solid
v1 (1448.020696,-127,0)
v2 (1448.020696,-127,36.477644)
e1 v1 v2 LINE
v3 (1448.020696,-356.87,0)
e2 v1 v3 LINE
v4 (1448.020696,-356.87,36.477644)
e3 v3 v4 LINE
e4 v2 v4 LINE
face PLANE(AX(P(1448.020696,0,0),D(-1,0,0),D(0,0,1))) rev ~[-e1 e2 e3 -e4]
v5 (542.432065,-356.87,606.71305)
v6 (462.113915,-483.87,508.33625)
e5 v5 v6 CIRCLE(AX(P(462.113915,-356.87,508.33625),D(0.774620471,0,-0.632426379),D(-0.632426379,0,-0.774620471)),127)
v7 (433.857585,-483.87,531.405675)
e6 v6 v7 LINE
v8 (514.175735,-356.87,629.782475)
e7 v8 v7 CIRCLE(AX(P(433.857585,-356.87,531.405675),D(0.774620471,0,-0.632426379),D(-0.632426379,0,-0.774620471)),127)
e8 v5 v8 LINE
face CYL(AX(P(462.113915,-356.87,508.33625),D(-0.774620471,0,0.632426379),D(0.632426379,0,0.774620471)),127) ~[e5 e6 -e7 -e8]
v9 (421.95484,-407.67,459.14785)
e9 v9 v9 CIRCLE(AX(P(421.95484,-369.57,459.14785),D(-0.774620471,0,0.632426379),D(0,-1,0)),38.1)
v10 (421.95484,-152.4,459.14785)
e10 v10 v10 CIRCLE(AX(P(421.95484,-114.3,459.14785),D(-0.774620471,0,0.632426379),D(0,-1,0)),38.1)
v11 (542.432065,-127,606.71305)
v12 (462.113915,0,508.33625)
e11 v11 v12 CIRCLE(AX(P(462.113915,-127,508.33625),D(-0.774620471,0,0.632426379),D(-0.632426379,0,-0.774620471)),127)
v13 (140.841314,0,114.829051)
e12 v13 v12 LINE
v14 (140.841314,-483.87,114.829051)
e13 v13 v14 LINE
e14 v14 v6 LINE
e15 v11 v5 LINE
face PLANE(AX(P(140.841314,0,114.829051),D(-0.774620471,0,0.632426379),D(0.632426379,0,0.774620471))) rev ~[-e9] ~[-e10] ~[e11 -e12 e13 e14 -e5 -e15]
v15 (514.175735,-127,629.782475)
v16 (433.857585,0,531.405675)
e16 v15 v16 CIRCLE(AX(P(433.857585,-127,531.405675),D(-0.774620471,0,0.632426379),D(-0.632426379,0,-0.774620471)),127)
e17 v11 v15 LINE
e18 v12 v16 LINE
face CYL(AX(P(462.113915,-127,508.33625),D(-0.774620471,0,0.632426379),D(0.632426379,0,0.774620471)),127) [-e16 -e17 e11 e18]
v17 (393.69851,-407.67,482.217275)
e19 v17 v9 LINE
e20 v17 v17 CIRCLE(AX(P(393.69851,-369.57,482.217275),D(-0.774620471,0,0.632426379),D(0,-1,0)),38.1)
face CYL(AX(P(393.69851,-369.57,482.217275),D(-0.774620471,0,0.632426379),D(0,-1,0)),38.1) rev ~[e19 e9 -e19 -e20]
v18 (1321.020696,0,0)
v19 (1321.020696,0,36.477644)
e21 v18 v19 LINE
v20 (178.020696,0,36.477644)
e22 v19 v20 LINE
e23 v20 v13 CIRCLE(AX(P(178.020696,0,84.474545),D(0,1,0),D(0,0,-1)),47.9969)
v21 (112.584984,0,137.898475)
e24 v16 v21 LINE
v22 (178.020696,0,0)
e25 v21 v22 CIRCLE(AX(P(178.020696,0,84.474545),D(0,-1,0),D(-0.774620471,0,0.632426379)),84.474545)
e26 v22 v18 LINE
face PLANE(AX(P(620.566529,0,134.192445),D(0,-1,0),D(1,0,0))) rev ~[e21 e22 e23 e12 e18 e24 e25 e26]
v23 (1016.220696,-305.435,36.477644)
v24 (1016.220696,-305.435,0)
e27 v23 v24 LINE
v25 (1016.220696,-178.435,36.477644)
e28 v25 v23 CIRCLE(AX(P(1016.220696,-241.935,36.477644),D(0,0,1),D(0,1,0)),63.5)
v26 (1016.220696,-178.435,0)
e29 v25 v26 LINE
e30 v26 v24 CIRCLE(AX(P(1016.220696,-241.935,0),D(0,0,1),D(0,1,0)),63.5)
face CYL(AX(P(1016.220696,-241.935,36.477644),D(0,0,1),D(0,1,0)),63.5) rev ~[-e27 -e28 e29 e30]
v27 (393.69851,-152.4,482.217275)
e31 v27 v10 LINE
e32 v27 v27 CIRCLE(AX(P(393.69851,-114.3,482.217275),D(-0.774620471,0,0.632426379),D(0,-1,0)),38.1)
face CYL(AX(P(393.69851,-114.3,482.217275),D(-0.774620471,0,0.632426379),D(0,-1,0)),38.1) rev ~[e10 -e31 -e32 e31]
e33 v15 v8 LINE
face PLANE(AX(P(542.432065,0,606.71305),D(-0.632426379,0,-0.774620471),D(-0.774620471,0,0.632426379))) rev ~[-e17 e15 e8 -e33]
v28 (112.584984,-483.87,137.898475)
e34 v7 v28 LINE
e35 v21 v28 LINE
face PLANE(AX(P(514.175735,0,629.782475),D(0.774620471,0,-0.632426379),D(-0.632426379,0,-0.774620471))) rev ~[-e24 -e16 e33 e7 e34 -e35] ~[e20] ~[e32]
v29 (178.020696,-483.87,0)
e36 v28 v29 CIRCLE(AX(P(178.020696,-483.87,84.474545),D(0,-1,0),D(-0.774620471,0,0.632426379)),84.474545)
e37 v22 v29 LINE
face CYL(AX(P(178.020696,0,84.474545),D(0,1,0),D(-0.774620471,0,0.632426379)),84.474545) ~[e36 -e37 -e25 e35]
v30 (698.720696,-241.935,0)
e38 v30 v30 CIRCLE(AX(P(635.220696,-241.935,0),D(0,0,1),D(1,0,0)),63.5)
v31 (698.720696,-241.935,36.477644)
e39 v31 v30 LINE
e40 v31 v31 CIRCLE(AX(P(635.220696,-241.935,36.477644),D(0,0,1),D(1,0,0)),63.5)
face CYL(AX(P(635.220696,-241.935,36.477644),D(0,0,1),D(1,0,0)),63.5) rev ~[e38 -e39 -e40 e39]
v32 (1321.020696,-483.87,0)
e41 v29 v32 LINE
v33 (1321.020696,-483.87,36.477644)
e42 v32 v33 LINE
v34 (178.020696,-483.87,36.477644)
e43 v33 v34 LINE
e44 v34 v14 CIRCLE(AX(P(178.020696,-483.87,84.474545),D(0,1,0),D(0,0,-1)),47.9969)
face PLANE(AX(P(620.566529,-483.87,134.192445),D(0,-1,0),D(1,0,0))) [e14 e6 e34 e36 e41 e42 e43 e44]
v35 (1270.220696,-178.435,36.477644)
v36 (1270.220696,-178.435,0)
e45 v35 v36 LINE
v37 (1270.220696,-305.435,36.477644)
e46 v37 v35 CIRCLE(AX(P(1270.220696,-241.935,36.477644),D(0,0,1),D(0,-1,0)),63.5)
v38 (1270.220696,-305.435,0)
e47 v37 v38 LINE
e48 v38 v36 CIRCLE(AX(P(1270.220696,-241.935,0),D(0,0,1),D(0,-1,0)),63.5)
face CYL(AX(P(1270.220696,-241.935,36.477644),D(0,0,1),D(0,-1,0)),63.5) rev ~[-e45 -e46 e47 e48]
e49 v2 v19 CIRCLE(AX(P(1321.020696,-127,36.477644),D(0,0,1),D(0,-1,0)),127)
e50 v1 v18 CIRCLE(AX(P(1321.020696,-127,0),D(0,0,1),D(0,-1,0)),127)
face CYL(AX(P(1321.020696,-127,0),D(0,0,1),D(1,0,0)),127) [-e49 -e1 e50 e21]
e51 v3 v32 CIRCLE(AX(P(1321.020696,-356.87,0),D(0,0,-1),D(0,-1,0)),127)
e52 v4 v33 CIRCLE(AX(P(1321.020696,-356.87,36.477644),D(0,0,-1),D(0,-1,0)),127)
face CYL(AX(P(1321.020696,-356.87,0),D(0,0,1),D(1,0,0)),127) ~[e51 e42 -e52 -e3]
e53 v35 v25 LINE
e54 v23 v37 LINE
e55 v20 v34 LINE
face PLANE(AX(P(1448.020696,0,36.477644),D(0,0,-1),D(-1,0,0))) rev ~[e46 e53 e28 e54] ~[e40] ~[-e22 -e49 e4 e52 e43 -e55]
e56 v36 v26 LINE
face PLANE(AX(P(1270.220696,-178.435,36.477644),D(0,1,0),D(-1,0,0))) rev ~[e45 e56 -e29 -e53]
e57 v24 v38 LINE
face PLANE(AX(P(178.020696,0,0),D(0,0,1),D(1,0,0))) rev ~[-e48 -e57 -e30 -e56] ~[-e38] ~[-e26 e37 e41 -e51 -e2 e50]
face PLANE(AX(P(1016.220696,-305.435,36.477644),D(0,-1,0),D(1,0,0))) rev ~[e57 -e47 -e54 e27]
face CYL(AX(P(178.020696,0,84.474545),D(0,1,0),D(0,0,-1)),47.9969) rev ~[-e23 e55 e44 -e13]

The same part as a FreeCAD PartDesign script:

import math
import FreeCAD as App
import Part
import Sketcher
Q = App.Units.Quantity


def edges_at(feature, points):
    """Names of the edges that pass closest to the given points."""
    edges = feature.Shape.Edges
    near = lambda p: min(range(len(edges)), key=lambda i: edges[i].distToShape(Part.Vertex(*p))[0])
    return sorted({f"Edge{near(p) + 1}" for p in points})

doc = App.newDocument("Part")
body = doc.addObject("PartDesign::Body", "Body")

# Sketch on XZ plane
sketch1 = body.newObject("Sketcher::SketchObject", "Sketch")
sketch1.AttachmentSupport = (doc.getObject("XZ_Plane"), [""])
sketch1.MapMode = "FlatFace"
sketch1.addGeometry([
    Part.LineSegment(App.Vector(514, 630, 0), App.Vector(113, 138, 0)),  # 0
    Part.ArcOfCircle(Part.Circle(App.Vector(178, 84, 0), App.Vector(0, 0, 1), 84), math.radians(141), math.radians(270)),  # 1
    Part.LineSegment(App.Vector(178, 0, 0), App.Vector(1448, 0, 0)),  # 2
    Part.LineSegment(App.Vector(1448, 0, 0), App.Vector(1448, 36, 0)),  # 3
    Part.LineSegment(App.Vector(1448, 36, 0), App.Vector(178, 36, 0)),  # 4
    Part.ArcOfCircle(Part.Circle(App.Vector(178, 84, 0), App.Vector(0, 0, 1), 48), math.radians(141), math.radians(270)),  # 5
    Part.LineSegment(App.Vector(141, 115, 0), App.Vector(542, 607, 0)),  # 6
    Part.LineSegment(App.Vector(542, 607, 0), App.Vector(514, 630, 0)),  # 7
], False)
sketch1.addConstraint([
    Sketcher.Constraint("Tangent", 0, 2, 1, 1),
    Sketcher.Constraint("Tangent", 1, 2, 2, 1),
    Sketcher.Constraint("Coincident", 2, 2, 3, 1),
    Sketcher.Constraint("Coincident", 3, 2, 4, 1),
    Sketcher.Constraint("Tangent", 4, 2, 5, 2),
    Sketcher.Constraint("Tangent", 5, 1, 6, 1),
    Sketcher.Constraint("Coincident", 6, 2, 7, 1),
    Sketcher.Constraint("Coincident", 7, 2, 0, 1),
    Sketcher.Constraint("Horizontal", 2),
    Sketcher.Constraint("Vertical", 3),
    Sketcher.Constraint("Horizontal", 4),
    Sketcher.Constraint("Coincident", 5, 3, 1, 3),
    Sketcher.Constraint("PointOnObject", 1, 2, -1),
    Sketcher.Constraint("Parallel", 0, 6),
    Sketcher.Constraint("Perpendicular", 6, 7),
    Sketcher.Constraint("DistanceX", 2, 1, 2, 2, Q("50 in")),
    Sketcher.Constraint("Distance", 0, Q("25 in")),
    Sketcher.Constraint("Radius", 5, Q("47.9969 mm")),
    Sketcher.Constraint("Radius", 1, Q("84.474545 mm")),
    Sketcher.Constraint("DistanceY", 5, 1, 6, 2, Q("491.883999 mm")),
    Sketcher.Constraint("DistanceX", -1, 1, 1, 3, Q("178.020696 mm")),
])
pad1 = body.newObject("PartDesign::Pad", "Pad")
pad1.Profile = sketch1
pad1.Length = Q("19.05 in")
doc.recompute()

fillet = body.newObject("PartDesign::Fillet", "Fillet")
fillet.Base = (pad1, edges_at(pad1, [
    (1448.021, -483.87, 18.239),
    (1448.021, 0, 18.239),
    (528.304, -483.87, 618.248),
    (528.304, 0, 618.248),
]))
fillet.Radius = Q("5 in")

# Sketch on an angled plane
sketch2 = body.newObject("Sketcher::SketchObject", "Sketch001")
sketch2.Placement = App.Placement(App.Vector(0, 0, 0), App.Rotation(App.Vector(0, -1, 0), App.Vector(0.632426379, 0, 0.774620471), App.Vector(-0.774620471, 0, 0.632426379), "ZXY"))
sketch2.addGeometry([
    Part.Circle(App.Vector(114, 623, 0), App.Vector(0, 0, 1), 38),
    Part.Circle(App.Vector(370, 623, 0), App.Vector(0, 0, 1), 38),
], False)
sketch2.addConstraint([
    Sketcher.Constraint("Equal", 0, 1),
    Sketcher.Constraint("Horizontal", 0, 3, 1, 3),
    Sketcher.Constraint("Diameter", 0, Q("3 in")),
    Sketcher.Constraint("DistanceX", -1, 1, 0, 3, Q("4.5 in")),
    Sketcher.Constraint("DistanceX", -1, 1, 1, 3, Q("14.55 in")),
    Sketcher.Constraint("DistanceY", -1, 1, 0, 3, Q("622.520695 mm")),
])
pocket1 = body.newObject("PartDesign::Pocket", "Pocket")
pocket1.Profile = sketch2
pocket1.Length = Q("3.9 in")

# Sketch on XY plane
sketch3 = body.newObject("Sketcher::SketchObject", "Sketch002")
sketch3.AttachmentSupport = (doc.getObject("XY_Plane"), [""])
sketch3.MapMode = "FlatFace"
sketch3.AttachmentOffset = App.Placement(App.Vector(0, 0, 36.477644), App.Rotation())
sketch3.addGeometry([
    Part.Circle(App.Vector(635, -242, 0), App.Vector(0, 0, 1), 64),  # 0
    Part.ArcOfCircle(Part.Circle(App.Vector(1270, -242, 0), App.Vector(0, 0, 1), 64), math.radians(-90), math.radians(90)),  # 1
    Part.LineSegment(App.Vector(1270, -178, 0), App.Vector(1016, -178, 0)),  # 2
    Part.ArcOfCircle(Part.Circle(App.Vector(1016, -242, 0), App.Vector(0, 0, 1), 64), math.radians(90), math.radians(270)),  # 3
    Part.LineSegment(App.Vector(1016, -305, 0), App.Vector(1270, -305, 0)),  # 4
], False)
sketch3.addConstraint([
    Sketcher.Constraint("Tangent", 1, 2, 2, 1),
    Sketcher.Constraint("Tangent", 2, 2, 3, 1),
    Sketcher.Constraint("Tangent", 3, 2, 4, 1),
    Sketcher.Constraint("Tangent", 4, 2, 1, 1),
    Sketcher.Constraint("Horizontal", 2),
    Sketcher.Constraint("Horizontal", 4),
    Sketcher.Constraint("Equal", 0, 1),
    Sketcher.Constraint("Horizontal", 0, 3, 1, 3),
    Sketcher.Constraint("Diameter", 0, Q("5 in")),
    Sketcher.Constraint("DistanceX", 2, 2, 2, 1, Q("10 in")),
    Sketcher.Constraint("DistanceX", 0, 3, 1, 3, Q("25 in")),
    Sketcher.Constraint("DistanceY", 0, 3, -1, 1, Q("9.525 in")),
    Sketcher.Constraint("DistanceX", -1, 1, 0, 3, Q("635.220696 mm")),
])
pocket2 = body.newObject("PartDesign::Pocket", "Pocket001")
pocket2.Profile = sketch3
pocket2.Length = Q("14.2 in")

doc.recompute()
